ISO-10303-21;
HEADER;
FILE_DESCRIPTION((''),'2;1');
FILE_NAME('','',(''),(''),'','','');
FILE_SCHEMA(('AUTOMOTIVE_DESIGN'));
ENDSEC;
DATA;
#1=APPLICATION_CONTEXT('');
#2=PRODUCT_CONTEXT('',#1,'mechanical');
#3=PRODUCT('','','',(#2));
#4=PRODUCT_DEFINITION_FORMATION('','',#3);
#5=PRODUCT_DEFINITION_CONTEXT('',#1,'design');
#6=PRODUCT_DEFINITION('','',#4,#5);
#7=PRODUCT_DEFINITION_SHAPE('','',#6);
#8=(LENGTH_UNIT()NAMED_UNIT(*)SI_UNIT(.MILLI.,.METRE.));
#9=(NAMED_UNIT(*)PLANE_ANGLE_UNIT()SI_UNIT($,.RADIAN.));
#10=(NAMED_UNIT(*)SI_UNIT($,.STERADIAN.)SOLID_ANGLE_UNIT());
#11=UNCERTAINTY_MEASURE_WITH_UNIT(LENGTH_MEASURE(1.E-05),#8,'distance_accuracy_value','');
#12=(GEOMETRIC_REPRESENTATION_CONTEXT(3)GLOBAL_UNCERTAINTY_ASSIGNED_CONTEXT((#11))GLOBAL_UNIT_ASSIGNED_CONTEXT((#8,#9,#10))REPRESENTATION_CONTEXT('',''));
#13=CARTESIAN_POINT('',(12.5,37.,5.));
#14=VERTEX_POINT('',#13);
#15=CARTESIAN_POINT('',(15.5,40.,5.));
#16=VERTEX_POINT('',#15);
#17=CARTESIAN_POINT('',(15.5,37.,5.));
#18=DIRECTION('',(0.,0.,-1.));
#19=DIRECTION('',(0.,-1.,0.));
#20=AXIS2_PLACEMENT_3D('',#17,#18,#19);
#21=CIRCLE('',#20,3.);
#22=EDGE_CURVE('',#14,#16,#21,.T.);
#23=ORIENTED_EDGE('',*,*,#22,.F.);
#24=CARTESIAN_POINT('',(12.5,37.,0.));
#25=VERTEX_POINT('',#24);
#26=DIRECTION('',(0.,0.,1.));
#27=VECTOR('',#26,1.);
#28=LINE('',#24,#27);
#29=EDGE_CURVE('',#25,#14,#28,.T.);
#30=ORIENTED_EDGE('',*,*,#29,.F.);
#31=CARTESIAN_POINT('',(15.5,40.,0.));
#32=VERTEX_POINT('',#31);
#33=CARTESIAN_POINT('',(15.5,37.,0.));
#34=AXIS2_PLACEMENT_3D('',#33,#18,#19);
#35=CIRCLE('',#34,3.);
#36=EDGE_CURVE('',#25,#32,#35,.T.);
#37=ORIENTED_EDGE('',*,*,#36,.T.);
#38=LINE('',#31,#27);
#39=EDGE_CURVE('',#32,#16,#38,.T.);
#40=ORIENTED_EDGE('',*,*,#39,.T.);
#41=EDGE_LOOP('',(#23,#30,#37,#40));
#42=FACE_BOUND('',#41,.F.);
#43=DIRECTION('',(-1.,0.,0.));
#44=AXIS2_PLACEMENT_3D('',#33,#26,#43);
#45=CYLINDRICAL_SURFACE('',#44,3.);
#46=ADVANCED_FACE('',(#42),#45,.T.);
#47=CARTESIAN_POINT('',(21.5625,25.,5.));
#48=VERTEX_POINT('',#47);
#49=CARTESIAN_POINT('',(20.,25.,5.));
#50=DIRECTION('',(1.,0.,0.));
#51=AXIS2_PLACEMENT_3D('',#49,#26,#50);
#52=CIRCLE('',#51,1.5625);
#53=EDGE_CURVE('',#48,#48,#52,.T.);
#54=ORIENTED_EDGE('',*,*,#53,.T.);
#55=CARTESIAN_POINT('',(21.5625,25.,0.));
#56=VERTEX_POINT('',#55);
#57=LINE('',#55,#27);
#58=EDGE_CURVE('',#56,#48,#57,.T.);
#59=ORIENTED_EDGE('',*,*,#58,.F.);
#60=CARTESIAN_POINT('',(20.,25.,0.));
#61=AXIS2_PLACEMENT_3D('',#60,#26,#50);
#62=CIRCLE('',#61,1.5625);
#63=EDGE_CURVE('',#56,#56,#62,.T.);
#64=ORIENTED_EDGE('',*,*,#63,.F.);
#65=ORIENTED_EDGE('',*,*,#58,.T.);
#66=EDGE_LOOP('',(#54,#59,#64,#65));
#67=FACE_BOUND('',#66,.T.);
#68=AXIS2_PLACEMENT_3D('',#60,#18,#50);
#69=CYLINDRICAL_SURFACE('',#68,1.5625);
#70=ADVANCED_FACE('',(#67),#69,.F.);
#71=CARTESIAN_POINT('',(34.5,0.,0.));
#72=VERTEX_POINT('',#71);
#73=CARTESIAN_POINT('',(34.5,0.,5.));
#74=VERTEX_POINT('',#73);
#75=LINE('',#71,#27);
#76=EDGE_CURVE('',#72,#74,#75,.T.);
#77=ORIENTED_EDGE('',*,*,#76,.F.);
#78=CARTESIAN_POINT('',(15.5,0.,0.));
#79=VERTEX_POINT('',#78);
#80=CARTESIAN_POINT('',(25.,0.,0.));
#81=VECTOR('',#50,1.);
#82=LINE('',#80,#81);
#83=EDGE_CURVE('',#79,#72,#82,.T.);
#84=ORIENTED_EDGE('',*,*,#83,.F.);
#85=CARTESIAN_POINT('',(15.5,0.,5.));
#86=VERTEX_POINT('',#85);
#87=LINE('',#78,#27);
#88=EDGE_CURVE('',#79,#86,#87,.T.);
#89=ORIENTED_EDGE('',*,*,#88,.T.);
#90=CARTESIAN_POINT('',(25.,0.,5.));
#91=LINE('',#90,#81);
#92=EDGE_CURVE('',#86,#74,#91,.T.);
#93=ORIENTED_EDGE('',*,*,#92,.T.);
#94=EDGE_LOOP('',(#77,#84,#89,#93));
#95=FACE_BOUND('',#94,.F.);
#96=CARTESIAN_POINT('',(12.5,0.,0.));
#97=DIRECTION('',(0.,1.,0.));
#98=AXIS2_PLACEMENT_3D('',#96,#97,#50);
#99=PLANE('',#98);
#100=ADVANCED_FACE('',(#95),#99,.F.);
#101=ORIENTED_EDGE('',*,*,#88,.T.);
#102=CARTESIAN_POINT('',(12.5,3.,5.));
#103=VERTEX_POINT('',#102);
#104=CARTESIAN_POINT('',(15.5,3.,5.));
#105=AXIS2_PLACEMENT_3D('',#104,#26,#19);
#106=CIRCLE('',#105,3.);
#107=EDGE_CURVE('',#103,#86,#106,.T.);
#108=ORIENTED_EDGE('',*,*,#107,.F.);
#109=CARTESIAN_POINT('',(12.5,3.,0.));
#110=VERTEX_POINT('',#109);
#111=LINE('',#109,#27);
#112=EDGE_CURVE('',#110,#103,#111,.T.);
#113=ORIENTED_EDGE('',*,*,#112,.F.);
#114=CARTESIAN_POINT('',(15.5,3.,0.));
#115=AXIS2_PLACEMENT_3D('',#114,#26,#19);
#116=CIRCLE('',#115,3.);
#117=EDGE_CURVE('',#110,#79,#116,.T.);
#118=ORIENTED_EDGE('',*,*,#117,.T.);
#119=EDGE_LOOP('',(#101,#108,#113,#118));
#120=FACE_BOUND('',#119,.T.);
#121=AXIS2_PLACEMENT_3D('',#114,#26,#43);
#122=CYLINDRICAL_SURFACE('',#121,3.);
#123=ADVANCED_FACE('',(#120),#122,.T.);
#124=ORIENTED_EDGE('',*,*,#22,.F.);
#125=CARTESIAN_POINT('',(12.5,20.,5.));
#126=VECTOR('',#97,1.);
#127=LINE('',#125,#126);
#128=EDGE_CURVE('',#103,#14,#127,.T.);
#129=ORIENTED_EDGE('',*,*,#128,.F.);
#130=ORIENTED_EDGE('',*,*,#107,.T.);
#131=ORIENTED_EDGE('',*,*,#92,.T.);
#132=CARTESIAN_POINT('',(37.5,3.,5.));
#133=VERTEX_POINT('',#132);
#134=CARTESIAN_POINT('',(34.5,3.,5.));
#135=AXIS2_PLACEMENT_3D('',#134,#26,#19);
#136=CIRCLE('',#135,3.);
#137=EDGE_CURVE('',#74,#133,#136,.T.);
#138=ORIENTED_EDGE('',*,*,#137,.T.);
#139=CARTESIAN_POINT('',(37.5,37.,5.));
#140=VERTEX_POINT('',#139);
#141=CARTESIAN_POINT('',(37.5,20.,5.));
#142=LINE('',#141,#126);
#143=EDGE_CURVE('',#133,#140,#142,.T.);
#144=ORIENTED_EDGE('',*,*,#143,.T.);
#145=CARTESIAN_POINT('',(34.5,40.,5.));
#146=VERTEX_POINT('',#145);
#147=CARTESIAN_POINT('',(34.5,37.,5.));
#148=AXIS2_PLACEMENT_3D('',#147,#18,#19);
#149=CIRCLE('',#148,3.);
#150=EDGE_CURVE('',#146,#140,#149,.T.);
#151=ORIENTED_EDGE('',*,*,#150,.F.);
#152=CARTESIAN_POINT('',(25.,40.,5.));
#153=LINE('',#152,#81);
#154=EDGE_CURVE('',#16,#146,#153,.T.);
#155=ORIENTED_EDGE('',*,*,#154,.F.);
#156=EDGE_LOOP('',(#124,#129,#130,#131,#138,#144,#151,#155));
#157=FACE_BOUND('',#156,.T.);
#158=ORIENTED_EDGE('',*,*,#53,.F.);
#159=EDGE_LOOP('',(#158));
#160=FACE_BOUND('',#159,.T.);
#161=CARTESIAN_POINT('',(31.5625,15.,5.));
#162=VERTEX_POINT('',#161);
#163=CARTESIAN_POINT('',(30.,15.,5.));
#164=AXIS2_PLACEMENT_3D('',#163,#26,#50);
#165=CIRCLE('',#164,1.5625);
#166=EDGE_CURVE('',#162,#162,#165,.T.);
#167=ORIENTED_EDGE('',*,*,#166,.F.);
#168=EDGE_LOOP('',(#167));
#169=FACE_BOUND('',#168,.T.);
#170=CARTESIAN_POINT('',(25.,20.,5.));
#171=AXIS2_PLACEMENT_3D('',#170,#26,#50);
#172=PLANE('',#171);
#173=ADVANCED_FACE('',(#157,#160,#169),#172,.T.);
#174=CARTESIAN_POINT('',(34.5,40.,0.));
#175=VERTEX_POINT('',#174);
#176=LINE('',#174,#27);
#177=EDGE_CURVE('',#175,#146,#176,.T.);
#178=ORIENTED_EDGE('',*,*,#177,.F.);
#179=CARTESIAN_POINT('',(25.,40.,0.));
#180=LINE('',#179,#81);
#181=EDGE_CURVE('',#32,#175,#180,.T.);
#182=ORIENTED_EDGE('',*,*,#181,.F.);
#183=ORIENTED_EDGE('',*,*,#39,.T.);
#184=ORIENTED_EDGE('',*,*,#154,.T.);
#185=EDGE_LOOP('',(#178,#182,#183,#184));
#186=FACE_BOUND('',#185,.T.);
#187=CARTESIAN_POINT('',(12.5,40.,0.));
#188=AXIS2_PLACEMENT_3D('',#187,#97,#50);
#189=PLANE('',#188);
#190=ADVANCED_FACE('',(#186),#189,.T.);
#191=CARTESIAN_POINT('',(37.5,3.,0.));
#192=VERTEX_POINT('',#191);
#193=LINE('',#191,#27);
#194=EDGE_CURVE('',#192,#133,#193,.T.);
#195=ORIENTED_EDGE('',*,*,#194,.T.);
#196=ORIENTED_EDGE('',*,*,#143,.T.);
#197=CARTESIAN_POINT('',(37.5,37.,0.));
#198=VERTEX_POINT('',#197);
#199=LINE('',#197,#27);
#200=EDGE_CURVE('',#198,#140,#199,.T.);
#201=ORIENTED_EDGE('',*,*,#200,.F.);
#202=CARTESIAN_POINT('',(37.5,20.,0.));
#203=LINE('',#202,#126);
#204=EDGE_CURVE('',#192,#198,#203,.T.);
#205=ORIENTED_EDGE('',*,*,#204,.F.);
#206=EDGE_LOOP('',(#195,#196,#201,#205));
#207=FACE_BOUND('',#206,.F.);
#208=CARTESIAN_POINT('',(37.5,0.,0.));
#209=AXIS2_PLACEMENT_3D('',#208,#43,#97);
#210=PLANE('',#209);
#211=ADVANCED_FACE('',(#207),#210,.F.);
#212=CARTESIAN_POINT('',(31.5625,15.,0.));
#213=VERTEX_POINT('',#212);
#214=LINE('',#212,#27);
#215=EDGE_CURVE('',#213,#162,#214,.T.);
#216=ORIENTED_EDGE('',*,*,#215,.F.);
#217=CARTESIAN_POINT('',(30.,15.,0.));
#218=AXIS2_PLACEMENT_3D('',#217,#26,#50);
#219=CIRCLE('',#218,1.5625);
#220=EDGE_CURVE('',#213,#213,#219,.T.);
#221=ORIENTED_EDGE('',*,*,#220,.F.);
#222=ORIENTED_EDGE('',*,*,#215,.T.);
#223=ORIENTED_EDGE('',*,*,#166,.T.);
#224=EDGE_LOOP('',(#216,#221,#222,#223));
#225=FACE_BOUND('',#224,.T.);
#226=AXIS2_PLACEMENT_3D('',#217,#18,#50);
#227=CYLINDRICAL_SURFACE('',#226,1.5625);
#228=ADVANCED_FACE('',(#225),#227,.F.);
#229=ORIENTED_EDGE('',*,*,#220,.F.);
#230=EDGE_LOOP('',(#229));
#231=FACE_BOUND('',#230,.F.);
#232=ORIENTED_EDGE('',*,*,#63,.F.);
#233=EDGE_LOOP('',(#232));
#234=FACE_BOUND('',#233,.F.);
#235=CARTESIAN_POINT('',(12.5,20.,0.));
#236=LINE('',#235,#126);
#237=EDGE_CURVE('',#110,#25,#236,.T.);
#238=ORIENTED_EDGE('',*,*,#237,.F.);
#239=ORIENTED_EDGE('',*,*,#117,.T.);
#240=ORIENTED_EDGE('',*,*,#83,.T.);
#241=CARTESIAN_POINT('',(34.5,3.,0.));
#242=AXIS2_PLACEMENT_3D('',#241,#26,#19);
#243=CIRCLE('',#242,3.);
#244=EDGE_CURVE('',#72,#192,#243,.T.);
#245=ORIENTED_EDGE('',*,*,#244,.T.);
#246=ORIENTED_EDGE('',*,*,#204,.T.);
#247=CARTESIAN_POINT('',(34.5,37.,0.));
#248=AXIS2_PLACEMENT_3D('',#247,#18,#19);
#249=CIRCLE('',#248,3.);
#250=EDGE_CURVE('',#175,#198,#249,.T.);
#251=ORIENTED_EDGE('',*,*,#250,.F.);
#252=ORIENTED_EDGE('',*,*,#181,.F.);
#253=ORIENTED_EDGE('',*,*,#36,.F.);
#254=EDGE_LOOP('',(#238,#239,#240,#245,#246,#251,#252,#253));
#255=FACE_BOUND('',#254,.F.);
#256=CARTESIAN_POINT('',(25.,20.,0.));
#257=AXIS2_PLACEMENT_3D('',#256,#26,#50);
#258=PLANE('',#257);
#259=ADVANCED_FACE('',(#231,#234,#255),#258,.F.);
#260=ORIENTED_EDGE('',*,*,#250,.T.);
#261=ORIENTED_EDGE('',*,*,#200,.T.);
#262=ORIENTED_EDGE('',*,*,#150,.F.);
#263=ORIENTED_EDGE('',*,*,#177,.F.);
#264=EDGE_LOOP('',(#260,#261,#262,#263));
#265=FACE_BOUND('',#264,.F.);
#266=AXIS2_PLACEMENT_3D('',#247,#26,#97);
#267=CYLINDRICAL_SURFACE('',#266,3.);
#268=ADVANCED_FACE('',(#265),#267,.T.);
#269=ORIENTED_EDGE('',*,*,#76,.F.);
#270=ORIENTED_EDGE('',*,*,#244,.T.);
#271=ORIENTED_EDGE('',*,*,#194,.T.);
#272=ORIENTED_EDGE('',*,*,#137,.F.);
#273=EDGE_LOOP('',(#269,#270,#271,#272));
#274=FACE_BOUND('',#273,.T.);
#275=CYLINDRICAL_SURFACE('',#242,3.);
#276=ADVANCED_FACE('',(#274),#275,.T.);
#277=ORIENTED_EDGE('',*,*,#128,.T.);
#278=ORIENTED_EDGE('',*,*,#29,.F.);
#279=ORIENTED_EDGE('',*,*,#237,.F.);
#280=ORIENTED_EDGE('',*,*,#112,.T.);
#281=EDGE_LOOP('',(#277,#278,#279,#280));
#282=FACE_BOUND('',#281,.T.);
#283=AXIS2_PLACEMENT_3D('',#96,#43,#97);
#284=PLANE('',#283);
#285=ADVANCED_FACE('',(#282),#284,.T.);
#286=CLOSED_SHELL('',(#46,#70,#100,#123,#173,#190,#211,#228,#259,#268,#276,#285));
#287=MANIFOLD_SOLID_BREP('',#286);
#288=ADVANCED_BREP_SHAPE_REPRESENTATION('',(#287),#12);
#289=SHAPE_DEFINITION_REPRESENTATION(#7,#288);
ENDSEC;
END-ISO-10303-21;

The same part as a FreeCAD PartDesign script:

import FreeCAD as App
import Part
import Sketcher
from FreeCAD import Vector
Q = App.Units.Quantity


def edges_at(feature, points):
    """Names of the edges that pass closest to the given points."""
    edges = feature.Shape.Edges
    near = lambda p: min(range(len(edges)), key=lambda i: edges[i].distToShape(Part.Vertex(*p))[0])
    return sorted({f"Edge{near(p) + 1}" for p in points})


def add_polygon(sketch, points):
    """Adds a closed chain of lines whose ends are joined by coincident constraints."""
    first, n = sketch.GeometryCount, len(points)
    for a, b in zip(points, points[1:] + points[:1]):
        sketch.addGeometry(Part.LineSegment(App.Vector(*a, 0), App.Vector(*b, 0)), False)
    for i in range(n):
        sketch.addConstraint(Sketcher.Constraint("Coincident", first + i, 2, first + (i + 1) % n, 1))

doc = App.newDocument("Part")
body = doc.addObject("PartDesign::Body", "Body")

# Sketch on XY plane
sketch1 = body.newObject("Sketcher::SketchObject", "Sketch")
sketch1.AttachmentSupport = (doc.getObject("XY_Plane"), [""])
sketch1.MapMode = "FlatFace"
add_polygon(sketch1, [(12.5, 40), (12.5, 0), (37.5, 0), (37.5, 40)])  # lines 0-3
sketch1.addGeometry(Part.Circle(Vector(30, 15, 0), Vector(0, 0, 1), 1.5625), False)  # 4
sketch1.addGeometry(Part.Circle(Vector(20, 25, 0), Vector(0, 0, 1), 1.5625), False)  # 5
sketch1.addConstraint([
    Sketcher.Constraint("Vertical", 0),
    Sketcher.Constraint("Horizontal", 1),
    Sketcher.Constraint("Vertical", 2),
    Sketcher.Constraint("Horizontal", 3),
    Sketcher.Constraint("Equal", 4, 5),
    Sketcher.Constraint("PointOnObject", 0, 2, -1),
    Sketcher.Constraint("DistanceX", 1, 1, 1, 2, Q("25 mm")),
    Sketcher.Constraint("DistanceY", 0, 2, 0, 1, Q("40 mm")),
    Sketcher.Constraint("Diameter", 4, Q("3.125 mm")),
    Sketcher.Constraint("DistanceX", -1, 1, 4, 3, Q("30 mm")),
    Sketcher.Constraint("DistanceY", -1, 1, 4, 3, Q("15 mm")),
    Sketcher.Constraint("DistanceX", -1, 1, 5, 3, Q("20 mm")),
    Sketcher.Constraint("DistanceY", -1, 1, 5, 3, Q("25 mm")),
    Sketcher.Constraint("DistanceX", -1, 1, 0, 2, Q("12.5 mm")),
])
pad1 = body.newObject("PartDesign::Pad", "Pad")
pad1.Profile = sketch1
pad1.Length = 5
doc.recompute()

fillet = body.newObject("PartDesign::Fillet", "Fillet")
fillet.Base = (pad1, edges_at(pad1, [
    (12.5, 0, 2.5),
    (12.5, 40, 2.5),
    (37.5, 40, 2.5),
    (37.5, 0, 2.5),
]))
fillet.Radius = 3

doc.recompute()
